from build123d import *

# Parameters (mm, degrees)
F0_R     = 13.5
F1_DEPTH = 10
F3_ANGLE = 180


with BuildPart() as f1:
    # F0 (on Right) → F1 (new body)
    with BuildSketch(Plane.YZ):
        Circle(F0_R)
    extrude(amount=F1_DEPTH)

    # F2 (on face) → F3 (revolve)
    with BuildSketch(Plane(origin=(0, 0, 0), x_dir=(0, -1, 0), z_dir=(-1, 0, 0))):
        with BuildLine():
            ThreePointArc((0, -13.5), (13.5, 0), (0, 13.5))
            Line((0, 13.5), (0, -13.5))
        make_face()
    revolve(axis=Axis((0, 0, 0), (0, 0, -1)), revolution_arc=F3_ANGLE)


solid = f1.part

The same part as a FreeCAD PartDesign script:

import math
import FreeCAD as App
import Part
import Sketcher

doc = App.newDocument("Part")
body = doc.addObject("PartDesign::Body", "Body")

sketch1 = doc.addObject("Sketcher::SketchObject", "Sketch")
body.addObject(sketch1)
sketch1.AttachmentSupport = (doc.YZ_Plane, [""])
sketch1.MapMode = "FlatFace"
sketch1.addGeometry(Part.Circle(App.Vector(0, 0, 0), App.Vector(0, 0, 1), 14), False)
sketch1.addConstraint([
    Sketcher.Constraint("Coincident", 0, 3, -1, 1),
    Sketcher.Constraint("Diameter", 0, 27.0),
])
pad1 = doc.addObject("PartDesign::Pad", "Pad")
body.addObject(pad1)
pad1.Profile = sketch1
pad1.Length = 10

sketch2 = doc.addObject("Sketcher::SketchObject", "Sketch001")
body.addObject(sketch2)
sketch2.AttachmentSupport = (doc.YZ_Plane, [""])
sketch2.MapMode = "FlatFace"
sketch2.addGeometry([
    Part.ArcOfCircle(Part.Circle(App.Vector(0, 0, 0), App.Vector(0, 0, 1), 14), math.radians(90), math.radians(270)),
    Part.LineSegment(App.Vector(0, 14, 0), App.Vector(0, -14, 0)),
], False)
sketch2.addConstraint([
    Sketcher.Constraint("Coincident", 0, 1, 1, 1),
    Sketcher.Constraint("Coincident", 1, 2, 0, 2),
    Sketcher.Constraint("Vertical", 1),
    Sketcher.Constraint("Coincident", 0, 3, -1, 1),
    Sketcher.Constraint("PointOnObject", 0, 1, -2),
    Sketcher.Constraint("Radius", 0, 13.5),
])
revolution = doc.addObject("PartDesign::Revolution", "Revolution")
body.addObject(revolution)
revolution.Profile = sketch2
revolution.ReferenceAxis = (sketch2, ["V_Axis"])
revolution.Angle = 180
revolution.Reversed = True

doc.recompute()
